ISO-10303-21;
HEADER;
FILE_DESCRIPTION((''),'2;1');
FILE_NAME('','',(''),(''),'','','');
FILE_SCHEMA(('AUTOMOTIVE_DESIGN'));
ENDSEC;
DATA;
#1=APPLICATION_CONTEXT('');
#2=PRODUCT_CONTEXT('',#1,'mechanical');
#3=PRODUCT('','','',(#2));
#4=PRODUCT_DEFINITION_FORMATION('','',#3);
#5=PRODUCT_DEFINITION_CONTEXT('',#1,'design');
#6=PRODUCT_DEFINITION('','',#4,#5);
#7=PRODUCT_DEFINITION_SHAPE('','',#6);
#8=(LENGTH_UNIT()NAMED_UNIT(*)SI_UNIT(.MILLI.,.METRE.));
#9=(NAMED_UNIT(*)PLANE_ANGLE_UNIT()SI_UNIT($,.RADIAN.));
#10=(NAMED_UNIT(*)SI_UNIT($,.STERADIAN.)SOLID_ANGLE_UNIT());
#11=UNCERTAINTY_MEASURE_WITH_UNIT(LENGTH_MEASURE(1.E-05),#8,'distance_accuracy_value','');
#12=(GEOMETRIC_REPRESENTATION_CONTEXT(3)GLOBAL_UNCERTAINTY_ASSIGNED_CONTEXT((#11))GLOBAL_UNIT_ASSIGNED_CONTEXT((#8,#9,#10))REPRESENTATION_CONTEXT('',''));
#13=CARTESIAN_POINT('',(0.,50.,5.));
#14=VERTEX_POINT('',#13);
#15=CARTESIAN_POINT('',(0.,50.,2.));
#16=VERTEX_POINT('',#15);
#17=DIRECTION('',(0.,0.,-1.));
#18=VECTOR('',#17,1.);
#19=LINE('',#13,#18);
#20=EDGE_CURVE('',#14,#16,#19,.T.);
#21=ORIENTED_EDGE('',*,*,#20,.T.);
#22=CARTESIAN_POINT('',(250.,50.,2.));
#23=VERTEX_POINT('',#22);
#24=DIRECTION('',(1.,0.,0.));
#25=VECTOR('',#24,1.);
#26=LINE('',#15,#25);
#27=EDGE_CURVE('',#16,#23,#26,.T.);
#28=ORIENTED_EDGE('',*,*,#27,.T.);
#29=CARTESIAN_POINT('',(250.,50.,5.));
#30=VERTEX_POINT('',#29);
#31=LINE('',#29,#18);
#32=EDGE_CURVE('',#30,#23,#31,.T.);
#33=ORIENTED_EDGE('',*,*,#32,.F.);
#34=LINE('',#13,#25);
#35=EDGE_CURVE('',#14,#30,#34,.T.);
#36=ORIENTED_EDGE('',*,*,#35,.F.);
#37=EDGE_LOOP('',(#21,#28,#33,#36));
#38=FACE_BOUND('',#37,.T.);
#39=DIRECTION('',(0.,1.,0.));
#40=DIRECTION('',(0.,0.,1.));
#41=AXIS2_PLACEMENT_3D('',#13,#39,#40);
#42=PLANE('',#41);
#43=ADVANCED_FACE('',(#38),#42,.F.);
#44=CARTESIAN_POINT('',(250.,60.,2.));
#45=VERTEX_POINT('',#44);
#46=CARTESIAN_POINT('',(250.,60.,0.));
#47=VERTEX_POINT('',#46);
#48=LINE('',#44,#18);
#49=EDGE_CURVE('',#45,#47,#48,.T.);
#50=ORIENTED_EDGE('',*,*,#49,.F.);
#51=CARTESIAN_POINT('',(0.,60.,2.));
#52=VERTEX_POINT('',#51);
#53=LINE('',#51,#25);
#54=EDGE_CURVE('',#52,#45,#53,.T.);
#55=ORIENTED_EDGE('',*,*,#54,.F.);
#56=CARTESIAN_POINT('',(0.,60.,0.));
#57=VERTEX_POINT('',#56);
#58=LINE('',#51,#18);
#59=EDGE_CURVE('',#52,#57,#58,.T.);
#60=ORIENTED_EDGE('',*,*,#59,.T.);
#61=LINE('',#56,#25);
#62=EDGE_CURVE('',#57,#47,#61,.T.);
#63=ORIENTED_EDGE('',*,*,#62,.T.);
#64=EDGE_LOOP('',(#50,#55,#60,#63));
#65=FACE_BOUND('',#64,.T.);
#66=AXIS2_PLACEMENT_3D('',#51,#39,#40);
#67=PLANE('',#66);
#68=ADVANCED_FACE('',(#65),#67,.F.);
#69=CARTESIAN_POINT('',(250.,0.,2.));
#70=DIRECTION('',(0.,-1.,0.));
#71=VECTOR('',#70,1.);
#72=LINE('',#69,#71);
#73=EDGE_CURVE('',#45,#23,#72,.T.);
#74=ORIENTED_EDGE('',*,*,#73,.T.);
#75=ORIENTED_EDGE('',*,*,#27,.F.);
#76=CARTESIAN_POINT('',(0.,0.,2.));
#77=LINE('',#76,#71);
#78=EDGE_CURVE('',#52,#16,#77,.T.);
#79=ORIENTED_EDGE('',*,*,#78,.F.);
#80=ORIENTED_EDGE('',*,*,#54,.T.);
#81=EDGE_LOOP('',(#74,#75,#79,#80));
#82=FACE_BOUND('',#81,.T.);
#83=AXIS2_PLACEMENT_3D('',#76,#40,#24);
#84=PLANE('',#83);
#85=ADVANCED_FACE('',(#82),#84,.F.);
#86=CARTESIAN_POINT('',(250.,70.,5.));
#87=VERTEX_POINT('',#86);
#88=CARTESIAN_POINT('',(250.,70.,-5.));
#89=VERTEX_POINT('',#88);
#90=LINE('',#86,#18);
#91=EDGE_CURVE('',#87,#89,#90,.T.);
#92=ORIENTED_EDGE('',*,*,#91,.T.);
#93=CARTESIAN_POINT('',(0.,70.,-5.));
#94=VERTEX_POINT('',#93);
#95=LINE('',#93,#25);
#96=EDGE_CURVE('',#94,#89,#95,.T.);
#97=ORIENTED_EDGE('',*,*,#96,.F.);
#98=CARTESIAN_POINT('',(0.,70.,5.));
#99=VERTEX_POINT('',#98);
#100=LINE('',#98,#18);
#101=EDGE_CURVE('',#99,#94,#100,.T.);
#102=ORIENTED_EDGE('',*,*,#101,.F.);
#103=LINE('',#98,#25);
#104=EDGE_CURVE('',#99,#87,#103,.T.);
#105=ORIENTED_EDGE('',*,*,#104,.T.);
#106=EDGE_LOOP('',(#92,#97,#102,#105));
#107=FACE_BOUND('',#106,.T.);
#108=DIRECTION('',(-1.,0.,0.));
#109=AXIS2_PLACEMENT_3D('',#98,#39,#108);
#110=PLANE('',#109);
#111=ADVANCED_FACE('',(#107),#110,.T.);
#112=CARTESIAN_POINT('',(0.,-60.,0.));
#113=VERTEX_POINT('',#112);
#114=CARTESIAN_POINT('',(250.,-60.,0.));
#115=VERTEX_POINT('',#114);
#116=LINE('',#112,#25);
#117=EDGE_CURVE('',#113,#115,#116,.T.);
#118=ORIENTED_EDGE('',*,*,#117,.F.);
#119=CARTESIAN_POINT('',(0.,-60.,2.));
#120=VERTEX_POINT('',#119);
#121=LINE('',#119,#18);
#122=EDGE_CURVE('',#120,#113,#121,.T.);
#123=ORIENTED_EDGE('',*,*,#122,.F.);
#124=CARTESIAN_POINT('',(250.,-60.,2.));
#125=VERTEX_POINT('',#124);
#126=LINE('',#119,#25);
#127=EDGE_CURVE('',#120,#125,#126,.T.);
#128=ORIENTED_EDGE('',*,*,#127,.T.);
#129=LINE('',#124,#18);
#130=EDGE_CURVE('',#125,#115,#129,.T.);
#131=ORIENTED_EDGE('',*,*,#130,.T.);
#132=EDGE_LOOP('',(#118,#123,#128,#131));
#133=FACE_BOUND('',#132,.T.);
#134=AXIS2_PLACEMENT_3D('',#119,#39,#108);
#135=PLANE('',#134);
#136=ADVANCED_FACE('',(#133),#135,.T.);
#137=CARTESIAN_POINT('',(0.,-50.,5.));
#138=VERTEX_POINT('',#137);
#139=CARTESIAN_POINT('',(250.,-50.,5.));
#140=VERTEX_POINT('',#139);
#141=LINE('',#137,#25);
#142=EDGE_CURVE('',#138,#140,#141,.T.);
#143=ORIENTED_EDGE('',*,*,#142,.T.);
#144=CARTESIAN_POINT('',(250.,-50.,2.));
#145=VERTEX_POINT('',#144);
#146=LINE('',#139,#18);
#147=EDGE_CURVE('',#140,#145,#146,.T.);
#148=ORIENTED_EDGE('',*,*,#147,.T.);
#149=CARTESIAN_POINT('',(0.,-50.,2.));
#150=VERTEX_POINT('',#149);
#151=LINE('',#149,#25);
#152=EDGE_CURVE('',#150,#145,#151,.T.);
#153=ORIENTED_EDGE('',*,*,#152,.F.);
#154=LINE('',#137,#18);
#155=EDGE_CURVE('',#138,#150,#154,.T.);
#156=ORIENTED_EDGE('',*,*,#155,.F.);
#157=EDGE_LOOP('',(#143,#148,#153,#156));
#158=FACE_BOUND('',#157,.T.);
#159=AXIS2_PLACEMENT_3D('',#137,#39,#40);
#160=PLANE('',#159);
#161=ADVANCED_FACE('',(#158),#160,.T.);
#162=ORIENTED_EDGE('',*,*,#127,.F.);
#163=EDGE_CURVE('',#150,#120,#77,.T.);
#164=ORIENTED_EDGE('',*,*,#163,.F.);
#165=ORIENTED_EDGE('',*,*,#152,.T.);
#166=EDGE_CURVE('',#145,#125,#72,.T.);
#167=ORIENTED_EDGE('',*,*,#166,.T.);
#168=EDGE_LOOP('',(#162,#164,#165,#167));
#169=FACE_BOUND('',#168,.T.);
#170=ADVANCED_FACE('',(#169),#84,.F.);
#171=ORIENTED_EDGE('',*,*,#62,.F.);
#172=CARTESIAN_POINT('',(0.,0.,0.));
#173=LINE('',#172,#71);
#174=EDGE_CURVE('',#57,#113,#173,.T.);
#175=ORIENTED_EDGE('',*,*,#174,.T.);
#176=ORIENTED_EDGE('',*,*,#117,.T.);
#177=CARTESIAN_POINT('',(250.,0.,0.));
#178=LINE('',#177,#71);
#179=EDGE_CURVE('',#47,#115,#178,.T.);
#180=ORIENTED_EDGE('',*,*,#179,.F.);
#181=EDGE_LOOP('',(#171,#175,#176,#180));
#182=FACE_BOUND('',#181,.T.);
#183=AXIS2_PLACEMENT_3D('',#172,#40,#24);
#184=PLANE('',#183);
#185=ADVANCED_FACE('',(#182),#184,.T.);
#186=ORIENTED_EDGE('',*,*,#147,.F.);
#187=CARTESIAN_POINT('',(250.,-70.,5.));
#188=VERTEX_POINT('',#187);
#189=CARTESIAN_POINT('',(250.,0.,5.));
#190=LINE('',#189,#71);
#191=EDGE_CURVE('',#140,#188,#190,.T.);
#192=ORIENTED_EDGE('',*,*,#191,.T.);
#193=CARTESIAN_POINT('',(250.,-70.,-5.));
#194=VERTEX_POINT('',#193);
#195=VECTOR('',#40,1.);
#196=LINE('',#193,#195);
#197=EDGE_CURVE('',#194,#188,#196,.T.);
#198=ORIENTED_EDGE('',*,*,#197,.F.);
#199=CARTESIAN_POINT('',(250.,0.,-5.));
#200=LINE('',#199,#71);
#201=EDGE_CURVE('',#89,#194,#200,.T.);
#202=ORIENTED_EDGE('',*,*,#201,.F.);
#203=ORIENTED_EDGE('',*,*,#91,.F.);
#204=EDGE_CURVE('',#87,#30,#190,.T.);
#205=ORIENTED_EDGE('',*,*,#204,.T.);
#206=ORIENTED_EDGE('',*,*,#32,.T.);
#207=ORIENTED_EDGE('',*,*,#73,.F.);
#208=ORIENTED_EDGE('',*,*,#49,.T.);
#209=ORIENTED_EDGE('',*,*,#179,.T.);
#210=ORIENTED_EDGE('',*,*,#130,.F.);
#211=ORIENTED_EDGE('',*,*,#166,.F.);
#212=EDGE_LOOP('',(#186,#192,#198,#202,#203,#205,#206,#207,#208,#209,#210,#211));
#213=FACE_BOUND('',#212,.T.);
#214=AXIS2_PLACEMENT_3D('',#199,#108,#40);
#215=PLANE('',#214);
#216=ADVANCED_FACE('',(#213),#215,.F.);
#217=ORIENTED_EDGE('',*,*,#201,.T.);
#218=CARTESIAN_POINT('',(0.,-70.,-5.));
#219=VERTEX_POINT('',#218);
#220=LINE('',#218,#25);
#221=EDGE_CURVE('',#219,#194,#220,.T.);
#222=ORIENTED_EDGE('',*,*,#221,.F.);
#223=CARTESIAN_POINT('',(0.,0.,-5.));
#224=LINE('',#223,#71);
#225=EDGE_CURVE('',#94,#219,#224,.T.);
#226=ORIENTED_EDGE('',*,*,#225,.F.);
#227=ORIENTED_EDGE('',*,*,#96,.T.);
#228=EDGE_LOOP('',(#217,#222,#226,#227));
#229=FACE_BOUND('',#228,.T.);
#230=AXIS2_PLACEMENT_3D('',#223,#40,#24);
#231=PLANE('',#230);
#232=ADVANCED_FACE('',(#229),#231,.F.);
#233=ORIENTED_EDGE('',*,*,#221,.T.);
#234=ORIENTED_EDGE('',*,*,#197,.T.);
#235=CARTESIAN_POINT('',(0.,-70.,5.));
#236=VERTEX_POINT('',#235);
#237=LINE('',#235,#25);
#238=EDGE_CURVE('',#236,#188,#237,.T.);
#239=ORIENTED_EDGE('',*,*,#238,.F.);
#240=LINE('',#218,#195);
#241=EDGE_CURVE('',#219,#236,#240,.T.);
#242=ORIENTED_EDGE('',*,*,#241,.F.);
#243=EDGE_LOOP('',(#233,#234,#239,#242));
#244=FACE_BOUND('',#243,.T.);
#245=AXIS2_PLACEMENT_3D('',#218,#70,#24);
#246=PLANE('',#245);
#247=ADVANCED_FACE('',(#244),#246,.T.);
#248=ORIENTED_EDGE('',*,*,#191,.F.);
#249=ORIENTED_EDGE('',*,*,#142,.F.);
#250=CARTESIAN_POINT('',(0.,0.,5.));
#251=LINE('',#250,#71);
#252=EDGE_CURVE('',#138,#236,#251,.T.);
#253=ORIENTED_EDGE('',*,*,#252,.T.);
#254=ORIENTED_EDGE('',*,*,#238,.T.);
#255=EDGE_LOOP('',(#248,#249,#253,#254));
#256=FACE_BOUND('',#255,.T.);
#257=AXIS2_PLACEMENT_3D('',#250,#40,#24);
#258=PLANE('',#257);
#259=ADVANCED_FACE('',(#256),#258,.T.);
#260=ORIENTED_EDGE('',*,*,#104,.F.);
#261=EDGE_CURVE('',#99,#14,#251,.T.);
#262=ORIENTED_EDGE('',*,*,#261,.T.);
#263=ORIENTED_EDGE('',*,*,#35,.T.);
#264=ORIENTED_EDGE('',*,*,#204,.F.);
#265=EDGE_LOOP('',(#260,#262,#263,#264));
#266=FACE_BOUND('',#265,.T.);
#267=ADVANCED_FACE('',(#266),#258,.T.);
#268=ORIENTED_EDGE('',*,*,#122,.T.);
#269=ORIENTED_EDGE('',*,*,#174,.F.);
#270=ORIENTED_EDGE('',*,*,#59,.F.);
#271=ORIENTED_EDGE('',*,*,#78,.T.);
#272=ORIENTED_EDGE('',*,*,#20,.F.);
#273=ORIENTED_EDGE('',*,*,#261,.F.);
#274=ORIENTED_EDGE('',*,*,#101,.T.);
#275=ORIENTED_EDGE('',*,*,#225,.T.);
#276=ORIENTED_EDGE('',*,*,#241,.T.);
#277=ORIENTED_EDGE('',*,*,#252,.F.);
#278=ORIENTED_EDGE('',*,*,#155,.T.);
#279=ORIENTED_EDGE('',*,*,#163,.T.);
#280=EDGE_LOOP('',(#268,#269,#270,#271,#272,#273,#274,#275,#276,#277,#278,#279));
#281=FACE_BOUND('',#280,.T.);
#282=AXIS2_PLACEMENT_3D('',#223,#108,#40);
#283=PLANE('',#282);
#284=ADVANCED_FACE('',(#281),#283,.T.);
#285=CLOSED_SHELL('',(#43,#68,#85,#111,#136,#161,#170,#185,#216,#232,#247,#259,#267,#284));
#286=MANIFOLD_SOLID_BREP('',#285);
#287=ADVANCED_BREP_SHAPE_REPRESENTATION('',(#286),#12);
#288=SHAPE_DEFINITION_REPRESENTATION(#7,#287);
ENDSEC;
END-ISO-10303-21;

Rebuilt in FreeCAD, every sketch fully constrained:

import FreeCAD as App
import Part
import Sketcher
from FreeCAD import Vector
Q = App.Units.Quantity


def add_polygon(sketch, points):
    """Adds a closed chain of lines whose ends are joined by coincident constraints."""
    first, n = sketch.GeometryCount, len(points)
    for a, b in zip(points, points[1:] + points[:1]):
        sketch.addGeometry(Part.LineSegment(App.Vector(*a, 0), App.Vector(*b, 0)), False)
    for i in range(n):
        sketch.addConstraint(Sketcher.Constraint("Coincident", first + i, 2, first + (i + 1) % n, 1))

doc = App.newDocument("Part")
body = doc.addObject("PartDesign::Body", "Body")

# Sketch on XY plane
sketch1 = body.newObject("Sketcher::SketchObject", "Sketch")
sketch1.AttachmentSupport = (doc.getObject("XY_Plane"), [""])
sketch1.MapMode = "FlatFace"
add_polygon(sketch1, [(250, 70), (0, 70), (0, -70), (250, -70)])  # lines 0-3
sketch1.addConstraint([
    Sketcher.Constraint("Horizontal", 0),
    Sketcher.Constraint("Vertical", 1),
    Sketcher.Constraint("Horizontal", 2),
    Sketcher.Constraint("Vertical", 3),
    Sketcher.Constraint("Symmetric", 0, 2, 1, 2, -1, 1),
    Sketcher.Constraint("DistanceX", 0, 2, 0, 1, Q("250 mm")),
    Sketcher.Constraint("DistanceY", 1, 2, 1, 1, Q("140 mm")),
])
pad1 = body.newObject("PartDesign::Pad", "Pad")
pad1.Profile = sketch1
pad1.Type = "TwoLengths"
pad1.Length = 5
pad1.Length2 = 5

# Sketch on XY plane
sketch2 = body.newObject("Sketcher::SketchObject", "Sketch001")
sketch2.AttachmentSupport = (doc.getObject("XY_Plane"), [""])
sketch2.MapMode = "FlatFace"
add_polygon(sketch2, [(0, 50), (0, -50), (250, -50), (250, 50)])  # lines 0-3
sketch2.addConstraint([
    Sketcher.Constraint("Vertical", 0),
    Sketcher.Constraint("Horizontal", 1),
    Sketcher.Constraint("Vertical", 2),
    Sketcher.Constraint("Horizontal", 3),
    Sketcher.Constraint("Symmetric", 0, 2, 3, 2, -1, 1),
    Sketcher.Constraint("DistanceX", 1, 1, 1, 2, Q("250 mm")),
    Sketcher.Constraint("DistanceY", 0, 2, 0, 1, Q("100 mm")),
])
pocket1 = body.newObject("PartDesign::Pocket", "Pocket")
pocket1.Profile = sketch2
pocket1.Type = "ThroughAll"
pocket1.Reversed = True

# Sketch on XY plane
sketch3 = body.newObject("Sketcher::SketchObject", "Sketch002")
sketch3.AttachmentSupport = (doc.getObject("XY_Plane"), [""])
sketch3.MapMode = "FlatFace"
add_polygon(sketch3, [(0, 60), (0, 50), (250, 50), (250, 60)])  # lines 0-3
add_polygon(sketch3, [(0, -50), (0, -60), (250, -60), (250, -50)])  # lines 4-7
sketch3.addConstraint([
    Sketcher.Constraint("Vertical", 0),
    Sketcher.Constraint("Horizontal", 1),
    Sketcher.Constraint("Vertical", 2),
    Sketcher.Constraint("Horizontal", 3),
    Sketcher.Constraint("Vertical", 4),
    Sketcher.Constraint("Horizontal", 5),
    Sketcher.Constraint("Vertical", 6),
    Sketcher.Constraint("Horizontal", 7),
    Sketcher.Constraint("Symmetric", 3, 2, 4, 2, -1, 1),
    Sketcher.Constraint("Symmetric", 1, 2, 6, 2, -1),
    Sketcher.Constraint("PointOnObject", 0, 2, -2),
    Sketcher.Constraint("DistanceX", 1, 1, 1, 2, Q("250 mm")),
    Sketcher.Constraint("DistanceY", 0, 2, 0, 1, Q("10 mm")),
    Sketcher.Constraint("DistanceY", -1, 1, 0, 2, Q("50 mm")),
])
pocket2 = body.newObject("PartDesign::Pocket", "Pocket001")
pocket2.Profile = sketch3
pocket2.Length = 2
pocket2.Reversed = True

doc.recompute()
